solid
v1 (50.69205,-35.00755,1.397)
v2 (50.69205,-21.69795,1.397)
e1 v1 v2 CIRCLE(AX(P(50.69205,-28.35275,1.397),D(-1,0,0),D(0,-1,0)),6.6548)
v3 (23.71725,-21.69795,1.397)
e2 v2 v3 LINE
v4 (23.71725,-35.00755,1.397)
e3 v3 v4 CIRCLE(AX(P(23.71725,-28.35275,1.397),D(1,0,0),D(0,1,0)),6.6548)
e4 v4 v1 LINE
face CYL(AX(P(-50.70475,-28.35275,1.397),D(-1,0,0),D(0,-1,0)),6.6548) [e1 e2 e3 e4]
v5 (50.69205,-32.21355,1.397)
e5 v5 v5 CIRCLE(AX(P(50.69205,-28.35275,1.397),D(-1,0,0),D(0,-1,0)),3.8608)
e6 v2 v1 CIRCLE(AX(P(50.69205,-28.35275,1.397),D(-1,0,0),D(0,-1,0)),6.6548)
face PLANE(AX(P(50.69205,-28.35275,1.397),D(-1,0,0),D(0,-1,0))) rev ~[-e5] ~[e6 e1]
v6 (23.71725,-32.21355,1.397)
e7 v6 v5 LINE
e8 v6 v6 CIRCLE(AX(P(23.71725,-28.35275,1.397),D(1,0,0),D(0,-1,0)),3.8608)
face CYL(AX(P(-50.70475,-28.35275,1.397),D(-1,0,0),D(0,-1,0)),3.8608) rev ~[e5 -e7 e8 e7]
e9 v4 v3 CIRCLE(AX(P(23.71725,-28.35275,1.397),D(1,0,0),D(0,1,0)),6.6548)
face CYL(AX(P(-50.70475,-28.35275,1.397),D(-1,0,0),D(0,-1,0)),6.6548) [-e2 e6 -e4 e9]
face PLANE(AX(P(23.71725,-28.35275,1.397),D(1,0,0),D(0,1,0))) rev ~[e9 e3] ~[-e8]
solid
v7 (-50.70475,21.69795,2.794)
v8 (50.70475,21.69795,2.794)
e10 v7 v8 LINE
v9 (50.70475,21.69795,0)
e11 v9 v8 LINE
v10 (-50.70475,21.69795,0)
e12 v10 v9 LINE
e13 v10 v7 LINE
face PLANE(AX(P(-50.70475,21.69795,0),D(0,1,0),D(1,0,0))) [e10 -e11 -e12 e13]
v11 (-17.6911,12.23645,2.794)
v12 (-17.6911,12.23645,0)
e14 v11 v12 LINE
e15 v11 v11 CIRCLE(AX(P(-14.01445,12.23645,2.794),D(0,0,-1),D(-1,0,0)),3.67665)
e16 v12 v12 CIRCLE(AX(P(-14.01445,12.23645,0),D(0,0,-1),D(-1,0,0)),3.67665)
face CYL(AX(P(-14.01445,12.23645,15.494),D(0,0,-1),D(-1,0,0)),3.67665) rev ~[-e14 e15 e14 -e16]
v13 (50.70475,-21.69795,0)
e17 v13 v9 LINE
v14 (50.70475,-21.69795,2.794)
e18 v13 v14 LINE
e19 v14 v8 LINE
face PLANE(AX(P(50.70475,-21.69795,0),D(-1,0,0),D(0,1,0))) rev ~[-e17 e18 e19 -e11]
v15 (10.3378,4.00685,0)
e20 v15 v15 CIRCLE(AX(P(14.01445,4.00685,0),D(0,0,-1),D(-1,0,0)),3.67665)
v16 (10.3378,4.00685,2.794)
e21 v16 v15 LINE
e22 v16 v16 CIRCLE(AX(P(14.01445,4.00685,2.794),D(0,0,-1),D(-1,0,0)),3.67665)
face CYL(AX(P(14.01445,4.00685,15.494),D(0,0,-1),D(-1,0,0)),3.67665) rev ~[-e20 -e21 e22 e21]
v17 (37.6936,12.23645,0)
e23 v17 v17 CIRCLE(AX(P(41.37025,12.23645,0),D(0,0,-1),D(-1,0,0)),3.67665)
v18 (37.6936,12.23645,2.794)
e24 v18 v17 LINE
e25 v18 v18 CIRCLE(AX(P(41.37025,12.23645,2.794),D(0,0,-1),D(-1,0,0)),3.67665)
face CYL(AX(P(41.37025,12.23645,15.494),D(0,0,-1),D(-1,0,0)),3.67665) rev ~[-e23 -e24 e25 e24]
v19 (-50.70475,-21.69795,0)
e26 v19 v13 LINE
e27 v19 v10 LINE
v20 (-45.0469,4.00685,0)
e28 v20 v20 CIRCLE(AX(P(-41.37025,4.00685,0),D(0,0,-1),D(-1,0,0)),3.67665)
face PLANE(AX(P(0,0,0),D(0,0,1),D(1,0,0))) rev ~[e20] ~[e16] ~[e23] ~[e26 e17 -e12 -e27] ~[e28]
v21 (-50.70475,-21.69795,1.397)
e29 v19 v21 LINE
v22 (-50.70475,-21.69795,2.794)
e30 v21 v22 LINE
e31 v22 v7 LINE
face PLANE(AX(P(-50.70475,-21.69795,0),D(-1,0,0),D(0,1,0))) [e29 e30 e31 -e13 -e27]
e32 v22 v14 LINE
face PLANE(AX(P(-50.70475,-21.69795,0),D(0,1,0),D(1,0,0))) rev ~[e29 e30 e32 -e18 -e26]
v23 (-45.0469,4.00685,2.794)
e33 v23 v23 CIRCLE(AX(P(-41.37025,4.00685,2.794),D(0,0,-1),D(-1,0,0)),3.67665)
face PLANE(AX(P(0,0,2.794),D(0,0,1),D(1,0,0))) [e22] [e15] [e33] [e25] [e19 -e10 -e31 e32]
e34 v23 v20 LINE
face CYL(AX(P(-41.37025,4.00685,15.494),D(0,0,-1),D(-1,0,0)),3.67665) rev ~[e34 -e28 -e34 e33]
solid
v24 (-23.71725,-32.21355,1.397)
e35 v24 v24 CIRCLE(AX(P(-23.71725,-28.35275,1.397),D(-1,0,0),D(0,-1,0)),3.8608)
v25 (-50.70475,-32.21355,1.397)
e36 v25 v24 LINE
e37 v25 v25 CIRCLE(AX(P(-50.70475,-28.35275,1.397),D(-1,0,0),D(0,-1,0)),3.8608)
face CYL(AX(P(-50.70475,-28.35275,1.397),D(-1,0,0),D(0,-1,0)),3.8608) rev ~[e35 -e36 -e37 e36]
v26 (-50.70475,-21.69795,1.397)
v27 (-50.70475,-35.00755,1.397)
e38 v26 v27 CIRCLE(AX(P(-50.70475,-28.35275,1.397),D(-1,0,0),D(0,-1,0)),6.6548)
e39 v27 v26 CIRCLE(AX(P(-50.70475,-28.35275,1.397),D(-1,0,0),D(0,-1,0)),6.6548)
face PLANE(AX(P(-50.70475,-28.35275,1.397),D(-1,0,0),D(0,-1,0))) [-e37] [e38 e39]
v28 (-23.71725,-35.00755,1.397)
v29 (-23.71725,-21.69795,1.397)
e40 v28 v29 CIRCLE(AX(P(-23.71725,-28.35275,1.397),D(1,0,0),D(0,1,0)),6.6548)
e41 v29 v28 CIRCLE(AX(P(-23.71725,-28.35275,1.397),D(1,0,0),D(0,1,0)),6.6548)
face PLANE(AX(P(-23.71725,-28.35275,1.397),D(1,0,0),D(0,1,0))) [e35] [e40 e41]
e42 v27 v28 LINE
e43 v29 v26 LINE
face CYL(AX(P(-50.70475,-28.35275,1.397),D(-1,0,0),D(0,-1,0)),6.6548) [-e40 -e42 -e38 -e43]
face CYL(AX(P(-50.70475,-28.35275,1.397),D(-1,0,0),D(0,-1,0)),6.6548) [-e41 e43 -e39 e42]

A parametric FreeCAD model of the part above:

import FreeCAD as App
import Part
import Sketcher
Q = App.Units.Quantity


def add_polygon(sketch, points):
    """Adds a closed chain of lines whose ends are joined by coincident constraints."""
    first, n = sketch.GeometryCount, len(points)
    for a, b in zip(points, points[1:] + points[:1]):
        sketch.addGeometry(Part.LineSegment(App.Vector(*a, 0), App.Vector(*b, 0)), False)
    for i in range(n):
        sketch.addConstraint(Sketcher.Constraint("Coincident", first + i, 2, first + (i + 1) % n, 1))

doc = App.newDocument("Part")
body = doc.addObject("PartDesign::Body", "Body")
body.AllowCompound = True

sketch1 = body.newObject("Sketcher::SketchObject", "Sketch")
sketch1.AttachmentSupport = (doc.getObject("XY_Plane"), [""])
sketch1.MapMode = "FlatFace"
add_polygon(sketch1, [(-51, 22), (-51, -22), (51, -22), (51, 22)])
sketch1.addConstraint(Sketcher.Constraint("Vertical", 0))
sketch1.addConstraint(Sketcher.Constraint("Horizontal", 1))
sketch1.addConstraint(Sketcher.Constraint("Vertical", 2))
sketch1.addConstraint(Sketcher.Constraint("Horizontal", 3))
sketch1.addConstraint(Sketcher.Constraint("Symmetric", 0, 2, 2, 2, -1, 1))
sketch1.addConstraint(Sketcher.Constraint("DistanceX", 1, 1, 1, 2, Q("3.9925 in")))
sketch1.addConstraint(Sketcher.Constraint("DistanceY", 0, 2, 0, 1, Q("1.7085 in")))
pad1 = body.newObject("PartDesign::Pad", "Pad")
pad1.Profile = sketch1
pad1.Length = Q("0.11 in")

sketch2 = body.newObject("Sketcher::SketchObject", "Sketch001")
sketch2.AttachmentSupport = (doc.getObject("YZ_Plane"), [""])
sketch2.MapMode = "FlatFace"
sketch2.AttachmentOffset = App.Placement(App.Vector(0, 0, -50.70475), App.Rotation())
sketch2.addGeometry(Part.Circle(App.Vector(-28.4, 1.4, 0), App.Vector(0, 0, 1), 6.7), False)
sketch2.addGeometry(Part.Circle(App.Vector(-28.4, 1.4, 0), App.Vector(0, 0, 1), 3.9), False)
sketch2.addConstraint(Sketcher.Constraint("Coincident", 1, 3, 0, 3))
sketch2.addConstraint(Sketcher.Constraint("Diameter", 0, Q("0.524 in")))
sketch2.addConstraint(Sketcher.Constraint("Diameter", 1, Q("0.304 in")))
sketch2.addConstraint(Sketcher.Constraint("DistanceY", -1, 1, 0, 3, Q("0.055 in")))
sketch2.addConstraint(Sketcher.Constraint("DistanceX", 0, 3, -1, 1, 28.35275))
pad2 = body.newObject("PartDesign::Pad", "Pad001")
pad2.Profile = sketch2
pad2.Length = Q("3.992 in")

sketch3 = body.newObject("Sketcher::SketchObject", "Sketch002")
sketch3.AttachmentSupport = (doc.getObject("YZ_Plane"), [""])
sketch3.MapMode = "FlatFace"
sketch3.addGeometry(Part.Circle(App.Vector(-28.4, 1.4, 0), App.Vector(0, 0, 1), 6.7), False)
sketch3.addGeometry(Part.Circle(App.Vector(-28.4, 1.4, 0), App.Vector(0, 0, 1), 3.9), False)
sketch3.addConstraint(Sketcher.Constraint("Coincident", 1, 3, 0, 3))
sketch3.addConstraint(Sketcher.Constraint("Diameter", 0, Q("0.524 in")))
sketch3.addConstraint(Sketcher.Constraint("Diameter", 1, Q("0.304 in")))
sketch3.addConstraint(Sketcher.Constraint("DistanceY", -1, 1, 0, 3, Q("0.055 in")))
sketch3.addConstraint(Sketcher.Constraint("DistanceX", 0, 3, -1, 1, 28.35275))
pocket1 = body.newObject("PartDesign::Pocket", "Pocket")
pocket1.Profile = sketch3
pocket1.Type = "TwoLengths"
pocket1.Length = 23.71725
pocket1.Length2 = 23.71725
pocket1.Reversed = True

sketch4 = body.newObject("Sketcher::SketchObject", "Sketch003")
sketch4.AttachmentSupport = (doc.getObject("XY_Plane"), [""])
sketch4.MapMode = "FlatFace"
sketch4.AttachmentOffset = App.Placement(App.Vector(0, 0, 0.11 * 25.4), App.Rotation())
sketch4.addGeometry(Part.Circle(App.Vector(41.4, 12.2, 0), App.Vector(0, 0, 1), 3.7), False)
sketch4.addGeometry(Part.Circle(App.Vector(14, 4, 0), App.Vector(0, 0, 1), 3.7), False)
sketch4.addGeometry(Part.Circle(App.Vector(-14, 12.2, 0), App.Vector(0, 0, 1), 3.7), False)
sketch4.addGeometry(Part.Circle(App.Vector(-41.4, 4, 0), App.Vector(0, 0, 1), 3.7), False)
sketch4.addConstraint(Sketcher.Constraint("Equal", 0, 1))
sketch4.addConstraint(Sketcher.Constraint("Equal", 1, 2))
sketch4.addConstraint(Sketcher.Constraint("Equal", 2, 3))
sketch4.addConstraint(Sketcher.Constraint("Horizontal", 0, 3, 2, 3))
sketch4.addConstraint(Sketcher.Constraint("Horizontal", 1, 3, 3, 3))
sketch4.addConstraint(Sketcher.Constraint("Diameter", 0, Q("0.2895 in")))
sketch4.addConstraint(Sketcher.Constraint("DistanceX", 1, 3, 0, 3, Q("1.077 in")))
sketch4.addConstraint(Sketcher.Constraint("DistanceY", 1, 3, 0, 3, Q("0.324 in")))
sketch4.addConstraint(Sketcher.Constraint("DistanceX", 3, 3, 2, 3, Q("1.077 in")))
sketch4.addConstraint(Sketcher.Constraint("DistanceX", 2, 3, 1, 3, Q("1.1035 in")))
sketch4.addConstraint(Sketcher.Constraint("DistanceX", -1, 1, 0, 3, 41.37025))
sketch4.addConstraint(Sketcher.Constraint("DistanceY", -1, 1, 0, 3, 12.23645))
doc.recompute()
hole = body.newObject("PartDesign::Hole", "Hole")
hole.Profile = sketch4
hole.ThreadType = "None"
hole.Diameter = Q("0.2895 in")
hole.DepthType = "Dimension"
hole.Depth = Q("0.5 in")
hole.DrillPoint = "Flat"

doc.recompute()
